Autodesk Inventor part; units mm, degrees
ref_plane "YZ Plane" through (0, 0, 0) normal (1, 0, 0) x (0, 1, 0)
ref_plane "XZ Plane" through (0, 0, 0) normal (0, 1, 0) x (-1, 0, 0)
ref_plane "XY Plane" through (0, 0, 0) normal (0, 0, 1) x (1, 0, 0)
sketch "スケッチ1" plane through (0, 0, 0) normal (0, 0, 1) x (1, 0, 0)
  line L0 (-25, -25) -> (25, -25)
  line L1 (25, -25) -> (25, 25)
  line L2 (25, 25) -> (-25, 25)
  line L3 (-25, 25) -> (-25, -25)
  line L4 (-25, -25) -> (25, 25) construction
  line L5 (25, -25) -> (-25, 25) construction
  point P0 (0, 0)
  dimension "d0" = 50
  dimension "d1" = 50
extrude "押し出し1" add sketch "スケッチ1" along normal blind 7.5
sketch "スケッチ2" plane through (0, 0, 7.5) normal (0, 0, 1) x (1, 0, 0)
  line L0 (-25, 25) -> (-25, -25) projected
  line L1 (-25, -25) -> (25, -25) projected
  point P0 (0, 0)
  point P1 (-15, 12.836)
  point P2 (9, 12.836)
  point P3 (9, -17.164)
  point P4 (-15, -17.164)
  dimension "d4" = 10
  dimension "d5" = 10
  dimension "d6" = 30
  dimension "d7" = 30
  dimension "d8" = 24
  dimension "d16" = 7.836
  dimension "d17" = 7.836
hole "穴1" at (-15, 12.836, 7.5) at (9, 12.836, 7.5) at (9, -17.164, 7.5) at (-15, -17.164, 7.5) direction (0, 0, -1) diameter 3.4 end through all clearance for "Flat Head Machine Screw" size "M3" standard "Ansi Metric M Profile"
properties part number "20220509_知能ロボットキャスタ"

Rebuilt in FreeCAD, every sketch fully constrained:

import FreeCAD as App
import Part
import Sketcher
from FreeCAD import Vector

doc = App.newDocument("Part")
body = doc.addObject("PartDesign::Body", "Body")

# Sketch on XY plane
sketch1 = body.newObject("Sketcher::SketchObject", "Sketch")
sketch1.AttachmentSupport = (doc.getObject("XY_Plane"), [""])
sketch1.MapMode = "FlatFace"
sketch1.addGeometry([
    Part.LineSegment(Vector(-25, 25, 0), Vector(-25, -25, 0)),
    Part.LineSegment(Vector(-25, -25, 0), Vector(25, -25, 0)),
    Part.LineSegment(Vector(25, -25, 0), Vector(25, 25, 0)),
    Part.LineSegment(Vector(25, 25, 0), Vector(-25, 25, 0)),
], False)
sketch1.addConstraint([
    Sketcher.Constraint("Coincident", 0, 2, 1, 1),
    Sketcher.Constraint("Coincident", 1, 2, 2, 1),
    Sketcher.Constraint("Coincident", 2, 2, 3, 1),
    Sketcher.Constraint("Coincident", 3, 2, 0, 1),
    Sketcher.Constraint("Vertical", 0),
    Sketcher.Constraint("Horizontal", 1),
    Sketcher.Constraint("Vertical", 2),
    Sketcher.Constraint("Horizontal", 3),
    Sketcher.Constraint("Symmetric", 0, 2, 2, 2, -1, 1),
    Sketcher.Constraint("Equal", 3, 0),
    Sketcher.Constraint("DistanceX", 1, 1, 1, 2, 50.0),
])
pad1 = body.newObject("PartDesign::Pad", "Pad")
pad1.Profile = sketch1
pad1.Length = 7.5

# Sketch on XY plane
sketch2 = body.newObject("Sketcher::SketchObject", "Sketch001")
sketch2.AttachmentSupport = (doc.getObject("XY_Plane"), [""])
sketch2.MapMode = "FlatFace"
sketch2.AttachmentOffset = App.Placement(Vector(0, 0, 7.5), App.Rotation())
sketch2.addGeometry([
    Part.Circle(Vector(-15, 12.836, 0), Vector(0, 0, 1), 1.7),
    Part.Circle(Vector(9, 12.836, 0), Vector(0, 0, 1), 1.7),
    Part.Circle(Vector(9, -17.164, 0), Vector(0, 0, 1), 1.7),
    Part.Circle(Vector(-15, -17.164, 0), Vector(0, 0, 1), 1.7),
], False)
sketch2.addConstraint([
    Sketcher.Constraint("Equal", 0, 1),
    Sketcher.Constraint("Equal", 1, 2),
    Sketcher.Constraint("Equal", 2, 3),
    Sketcher.Constraint("Horizontal", 0, 3, 1, 3),
    Sketcher.Constraint("Horizontal", 2, 3, 3, 3),
    Sketcher.Constraint("Vertical", 1, 3, 2, 3),
    Sketcher.Constraint("Vertical", 0, 3, 3, 3),
    Sketcher.Constraint("Diameter", 0, 3.4),
    Sketcher.Constraint("DistanceX", 0, 3, -1, 1, 15.0),
    Sketcher.Constraint("DistanceX", -1, 1, 1, 3, 9.0),
    Sketcher.Constraint("DistanceY", 2, 3, 1, 3, 30.0),
    Sketcher.Constraint("DistanceY", -1, 1, 0, 3, 12.836),
])
doc.recompute()
hole = body.newObject("PartDesign::Hole", "Hole")
hole.Profile = sketch2
hole.ThreadType = "None"
hole.Diameter = 3.4
hole.DepthType = "ThroughAll"

doc.recompute()
